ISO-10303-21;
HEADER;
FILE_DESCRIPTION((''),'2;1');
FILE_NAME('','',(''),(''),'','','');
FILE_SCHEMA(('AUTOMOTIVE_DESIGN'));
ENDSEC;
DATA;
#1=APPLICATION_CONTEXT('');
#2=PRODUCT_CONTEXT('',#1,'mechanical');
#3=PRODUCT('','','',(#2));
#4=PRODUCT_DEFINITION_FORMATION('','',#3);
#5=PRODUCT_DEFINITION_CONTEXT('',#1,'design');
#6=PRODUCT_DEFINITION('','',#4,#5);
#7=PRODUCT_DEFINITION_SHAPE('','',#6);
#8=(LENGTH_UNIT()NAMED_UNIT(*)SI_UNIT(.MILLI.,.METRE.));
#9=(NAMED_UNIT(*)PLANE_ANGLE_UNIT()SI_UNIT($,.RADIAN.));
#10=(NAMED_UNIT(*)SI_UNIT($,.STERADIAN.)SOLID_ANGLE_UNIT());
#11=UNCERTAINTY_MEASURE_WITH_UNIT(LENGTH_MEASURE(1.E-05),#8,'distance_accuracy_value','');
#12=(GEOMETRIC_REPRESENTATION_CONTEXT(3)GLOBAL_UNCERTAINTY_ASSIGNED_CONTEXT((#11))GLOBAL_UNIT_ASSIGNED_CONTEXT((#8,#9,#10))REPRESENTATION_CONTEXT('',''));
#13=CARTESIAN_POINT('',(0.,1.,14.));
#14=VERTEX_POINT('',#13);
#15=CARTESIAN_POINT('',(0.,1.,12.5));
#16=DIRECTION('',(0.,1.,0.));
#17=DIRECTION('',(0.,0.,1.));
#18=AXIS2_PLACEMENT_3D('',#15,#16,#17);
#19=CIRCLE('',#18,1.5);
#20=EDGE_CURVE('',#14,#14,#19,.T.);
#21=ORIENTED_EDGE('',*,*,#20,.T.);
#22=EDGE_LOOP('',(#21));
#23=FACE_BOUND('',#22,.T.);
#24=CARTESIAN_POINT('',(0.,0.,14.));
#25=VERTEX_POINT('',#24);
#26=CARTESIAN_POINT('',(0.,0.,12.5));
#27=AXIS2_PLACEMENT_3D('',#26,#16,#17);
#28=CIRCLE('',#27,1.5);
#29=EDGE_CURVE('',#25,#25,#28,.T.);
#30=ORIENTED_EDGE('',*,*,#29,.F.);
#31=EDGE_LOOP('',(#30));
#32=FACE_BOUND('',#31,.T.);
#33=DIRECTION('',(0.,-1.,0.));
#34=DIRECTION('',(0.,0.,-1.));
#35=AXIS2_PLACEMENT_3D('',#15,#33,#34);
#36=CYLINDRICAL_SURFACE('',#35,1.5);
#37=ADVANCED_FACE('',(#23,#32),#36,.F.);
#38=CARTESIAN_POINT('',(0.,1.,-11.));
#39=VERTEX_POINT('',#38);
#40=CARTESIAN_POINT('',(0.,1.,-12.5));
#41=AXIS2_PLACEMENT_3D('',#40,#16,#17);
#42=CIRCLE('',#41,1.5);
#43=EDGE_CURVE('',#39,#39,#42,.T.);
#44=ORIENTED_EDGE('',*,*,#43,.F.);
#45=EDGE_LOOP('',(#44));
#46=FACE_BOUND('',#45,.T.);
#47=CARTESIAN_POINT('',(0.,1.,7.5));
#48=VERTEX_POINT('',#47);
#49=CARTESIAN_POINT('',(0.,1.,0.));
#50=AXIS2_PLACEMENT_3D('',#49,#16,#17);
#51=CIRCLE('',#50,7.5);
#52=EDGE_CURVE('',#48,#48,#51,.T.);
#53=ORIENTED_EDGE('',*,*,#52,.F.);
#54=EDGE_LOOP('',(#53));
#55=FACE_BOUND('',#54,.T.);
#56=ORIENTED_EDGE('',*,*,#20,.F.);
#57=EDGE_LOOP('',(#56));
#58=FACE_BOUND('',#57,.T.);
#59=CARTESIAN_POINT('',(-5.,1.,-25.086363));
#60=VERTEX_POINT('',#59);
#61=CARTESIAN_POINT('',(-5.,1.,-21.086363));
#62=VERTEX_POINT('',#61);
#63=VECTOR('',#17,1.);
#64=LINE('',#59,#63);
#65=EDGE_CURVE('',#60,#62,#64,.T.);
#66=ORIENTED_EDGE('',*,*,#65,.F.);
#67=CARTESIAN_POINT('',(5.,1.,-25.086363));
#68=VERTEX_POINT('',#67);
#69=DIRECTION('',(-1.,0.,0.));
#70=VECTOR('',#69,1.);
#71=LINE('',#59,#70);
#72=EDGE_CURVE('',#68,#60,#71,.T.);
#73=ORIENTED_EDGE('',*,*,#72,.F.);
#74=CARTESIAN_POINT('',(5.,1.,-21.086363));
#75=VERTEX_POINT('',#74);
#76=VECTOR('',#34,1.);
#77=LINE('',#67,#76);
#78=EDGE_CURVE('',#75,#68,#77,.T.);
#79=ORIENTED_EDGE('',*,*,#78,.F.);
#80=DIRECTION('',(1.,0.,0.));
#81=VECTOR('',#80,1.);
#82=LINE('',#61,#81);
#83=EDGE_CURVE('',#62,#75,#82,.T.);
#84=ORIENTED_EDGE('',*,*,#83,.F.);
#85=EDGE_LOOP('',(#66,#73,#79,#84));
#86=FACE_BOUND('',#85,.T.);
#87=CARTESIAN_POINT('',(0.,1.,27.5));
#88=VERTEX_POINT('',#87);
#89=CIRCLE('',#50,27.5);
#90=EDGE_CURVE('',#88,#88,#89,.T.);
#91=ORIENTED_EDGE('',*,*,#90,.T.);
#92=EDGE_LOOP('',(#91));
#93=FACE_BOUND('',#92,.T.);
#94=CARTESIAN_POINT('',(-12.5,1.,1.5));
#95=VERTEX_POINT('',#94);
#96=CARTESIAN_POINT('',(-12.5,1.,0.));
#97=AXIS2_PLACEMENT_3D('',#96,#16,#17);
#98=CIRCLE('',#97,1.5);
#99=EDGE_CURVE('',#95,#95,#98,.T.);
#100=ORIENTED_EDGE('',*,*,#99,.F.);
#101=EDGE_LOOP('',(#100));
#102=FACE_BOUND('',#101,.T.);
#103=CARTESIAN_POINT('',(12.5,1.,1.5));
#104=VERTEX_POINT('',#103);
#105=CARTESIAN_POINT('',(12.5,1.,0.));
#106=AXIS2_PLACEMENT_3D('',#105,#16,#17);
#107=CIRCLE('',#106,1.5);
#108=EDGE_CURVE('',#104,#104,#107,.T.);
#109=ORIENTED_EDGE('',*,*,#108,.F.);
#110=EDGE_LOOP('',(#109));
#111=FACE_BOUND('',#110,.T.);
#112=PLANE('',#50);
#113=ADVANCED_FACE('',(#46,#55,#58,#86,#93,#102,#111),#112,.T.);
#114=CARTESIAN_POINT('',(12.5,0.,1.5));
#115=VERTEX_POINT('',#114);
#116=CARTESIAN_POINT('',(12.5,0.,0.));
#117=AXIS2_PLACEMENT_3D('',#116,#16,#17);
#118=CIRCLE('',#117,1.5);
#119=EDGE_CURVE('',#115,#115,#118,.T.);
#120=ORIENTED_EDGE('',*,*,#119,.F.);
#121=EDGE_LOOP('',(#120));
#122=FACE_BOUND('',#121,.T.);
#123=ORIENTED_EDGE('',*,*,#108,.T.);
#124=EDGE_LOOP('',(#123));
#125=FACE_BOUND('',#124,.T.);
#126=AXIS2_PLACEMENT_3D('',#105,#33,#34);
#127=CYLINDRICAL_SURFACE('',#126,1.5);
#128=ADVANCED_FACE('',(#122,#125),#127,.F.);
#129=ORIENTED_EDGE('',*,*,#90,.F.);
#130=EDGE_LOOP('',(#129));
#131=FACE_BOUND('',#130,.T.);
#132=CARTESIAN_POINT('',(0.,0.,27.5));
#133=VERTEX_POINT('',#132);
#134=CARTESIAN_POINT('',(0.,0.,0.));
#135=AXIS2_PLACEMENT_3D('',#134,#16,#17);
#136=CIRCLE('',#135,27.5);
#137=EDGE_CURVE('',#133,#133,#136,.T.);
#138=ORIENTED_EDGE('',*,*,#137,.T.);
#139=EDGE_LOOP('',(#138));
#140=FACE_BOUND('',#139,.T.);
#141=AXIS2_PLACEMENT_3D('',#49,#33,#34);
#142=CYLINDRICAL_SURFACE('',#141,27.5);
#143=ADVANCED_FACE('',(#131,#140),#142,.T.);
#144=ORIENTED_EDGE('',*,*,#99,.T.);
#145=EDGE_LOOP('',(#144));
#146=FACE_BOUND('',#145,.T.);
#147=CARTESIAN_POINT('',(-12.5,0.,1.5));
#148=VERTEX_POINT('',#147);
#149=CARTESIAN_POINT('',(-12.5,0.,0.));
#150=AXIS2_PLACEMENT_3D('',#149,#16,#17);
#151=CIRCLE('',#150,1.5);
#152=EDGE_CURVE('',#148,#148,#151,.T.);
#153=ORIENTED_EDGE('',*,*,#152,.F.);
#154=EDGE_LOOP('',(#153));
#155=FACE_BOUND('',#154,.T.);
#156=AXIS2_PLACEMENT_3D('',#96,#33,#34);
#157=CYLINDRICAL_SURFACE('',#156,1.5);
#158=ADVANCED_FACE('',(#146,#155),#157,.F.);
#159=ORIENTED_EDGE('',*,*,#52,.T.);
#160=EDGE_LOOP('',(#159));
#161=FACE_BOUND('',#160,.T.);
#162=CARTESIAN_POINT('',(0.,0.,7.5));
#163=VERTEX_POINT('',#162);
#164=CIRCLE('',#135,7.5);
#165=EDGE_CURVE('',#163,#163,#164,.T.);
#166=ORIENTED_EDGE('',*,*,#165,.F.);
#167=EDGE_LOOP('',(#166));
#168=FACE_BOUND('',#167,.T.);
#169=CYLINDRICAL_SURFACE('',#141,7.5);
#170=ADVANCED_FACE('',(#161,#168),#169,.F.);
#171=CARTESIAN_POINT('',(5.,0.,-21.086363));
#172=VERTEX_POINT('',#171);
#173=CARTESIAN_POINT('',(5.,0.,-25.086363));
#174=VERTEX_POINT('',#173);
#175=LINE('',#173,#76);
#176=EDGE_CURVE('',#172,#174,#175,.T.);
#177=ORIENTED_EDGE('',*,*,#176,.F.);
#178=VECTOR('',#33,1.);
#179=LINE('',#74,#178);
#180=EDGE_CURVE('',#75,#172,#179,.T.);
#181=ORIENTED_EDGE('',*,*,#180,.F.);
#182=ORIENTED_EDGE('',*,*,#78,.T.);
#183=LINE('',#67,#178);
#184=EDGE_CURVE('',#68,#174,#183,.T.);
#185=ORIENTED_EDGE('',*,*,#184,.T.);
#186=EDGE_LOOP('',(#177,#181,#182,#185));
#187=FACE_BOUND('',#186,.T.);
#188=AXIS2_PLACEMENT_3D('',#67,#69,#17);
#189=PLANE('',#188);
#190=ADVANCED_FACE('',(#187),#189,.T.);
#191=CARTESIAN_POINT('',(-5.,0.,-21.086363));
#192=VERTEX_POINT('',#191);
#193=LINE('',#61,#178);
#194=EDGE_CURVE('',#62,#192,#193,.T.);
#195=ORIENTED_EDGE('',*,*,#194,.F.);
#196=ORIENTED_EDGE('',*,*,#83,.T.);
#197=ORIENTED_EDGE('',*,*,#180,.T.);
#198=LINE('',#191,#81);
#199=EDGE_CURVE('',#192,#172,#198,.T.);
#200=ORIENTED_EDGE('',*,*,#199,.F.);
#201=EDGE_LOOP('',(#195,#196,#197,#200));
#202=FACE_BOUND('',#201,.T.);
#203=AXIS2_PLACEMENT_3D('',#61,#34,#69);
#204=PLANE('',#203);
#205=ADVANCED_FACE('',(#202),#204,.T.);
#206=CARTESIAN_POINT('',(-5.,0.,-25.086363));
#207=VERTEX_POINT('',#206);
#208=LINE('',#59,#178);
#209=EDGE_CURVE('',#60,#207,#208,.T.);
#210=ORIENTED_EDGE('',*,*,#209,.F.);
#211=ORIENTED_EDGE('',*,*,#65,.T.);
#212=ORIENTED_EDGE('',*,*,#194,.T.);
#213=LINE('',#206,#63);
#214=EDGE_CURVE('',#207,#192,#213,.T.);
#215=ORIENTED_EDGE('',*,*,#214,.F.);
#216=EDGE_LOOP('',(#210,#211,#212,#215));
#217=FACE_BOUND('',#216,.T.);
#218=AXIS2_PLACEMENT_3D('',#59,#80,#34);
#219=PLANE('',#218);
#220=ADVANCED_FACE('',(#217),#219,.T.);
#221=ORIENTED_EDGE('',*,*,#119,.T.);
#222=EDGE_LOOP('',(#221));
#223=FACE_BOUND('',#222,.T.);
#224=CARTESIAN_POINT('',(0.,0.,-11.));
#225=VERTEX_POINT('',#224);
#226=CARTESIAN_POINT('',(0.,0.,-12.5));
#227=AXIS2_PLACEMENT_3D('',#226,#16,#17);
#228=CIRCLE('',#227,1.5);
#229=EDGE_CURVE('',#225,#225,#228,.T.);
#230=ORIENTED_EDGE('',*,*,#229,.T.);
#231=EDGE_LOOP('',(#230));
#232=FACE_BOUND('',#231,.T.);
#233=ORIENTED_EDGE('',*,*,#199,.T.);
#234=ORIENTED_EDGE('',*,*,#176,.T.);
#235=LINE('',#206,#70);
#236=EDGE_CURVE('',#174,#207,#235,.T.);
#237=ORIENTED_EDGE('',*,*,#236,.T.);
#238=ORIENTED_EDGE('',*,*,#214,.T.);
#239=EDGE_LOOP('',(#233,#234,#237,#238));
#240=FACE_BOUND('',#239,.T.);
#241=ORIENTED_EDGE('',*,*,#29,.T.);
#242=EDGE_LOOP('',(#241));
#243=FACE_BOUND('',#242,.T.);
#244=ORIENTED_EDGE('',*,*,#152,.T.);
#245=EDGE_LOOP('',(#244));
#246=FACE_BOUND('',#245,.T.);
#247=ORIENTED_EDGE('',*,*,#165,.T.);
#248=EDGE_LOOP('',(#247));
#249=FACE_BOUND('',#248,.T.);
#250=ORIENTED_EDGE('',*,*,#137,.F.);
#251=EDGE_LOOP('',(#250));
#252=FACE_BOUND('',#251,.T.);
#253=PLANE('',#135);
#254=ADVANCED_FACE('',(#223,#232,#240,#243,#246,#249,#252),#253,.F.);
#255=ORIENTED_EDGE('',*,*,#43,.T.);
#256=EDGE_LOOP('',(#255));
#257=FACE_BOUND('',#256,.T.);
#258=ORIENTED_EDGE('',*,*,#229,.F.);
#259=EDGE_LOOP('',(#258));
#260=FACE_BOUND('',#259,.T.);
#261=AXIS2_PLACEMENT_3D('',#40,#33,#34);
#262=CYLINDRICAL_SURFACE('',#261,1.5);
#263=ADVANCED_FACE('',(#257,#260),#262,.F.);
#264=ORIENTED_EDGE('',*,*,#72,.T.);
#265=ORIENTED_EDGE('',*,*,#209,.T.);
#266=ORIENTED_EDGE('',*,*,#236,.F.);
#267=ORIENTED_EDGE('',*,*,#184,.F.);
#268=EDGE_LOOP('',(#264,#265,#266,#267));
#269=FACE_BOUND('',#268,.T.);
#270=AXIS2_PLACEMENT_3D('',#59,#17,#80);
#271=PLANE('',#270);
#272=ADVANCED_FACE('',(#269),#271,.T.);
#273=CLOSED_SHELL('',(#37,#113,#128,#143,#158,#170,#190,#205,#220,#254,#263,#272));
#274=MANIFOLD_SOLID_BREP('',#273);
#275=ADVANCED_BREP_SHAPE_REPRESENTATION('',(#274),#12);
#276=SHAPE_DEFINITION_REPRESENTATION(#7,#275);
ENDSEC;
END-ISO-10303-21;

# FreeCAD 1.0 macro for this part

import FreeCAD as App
import Part
import Sketcher

V = App.Vector
Q = App.Units.Quantity

doc = App.newDocument("Part")
body = doc.addObject("PartDesign::Body", "Body")

sketch1 = body.newObject("Sketcher::SketchObject", "Sketch")
sketch1.AttachmentSupport = (doc.getObject("XZ_Plane"), [""])
sketch1.MapMode = "FlatFace"
sketch1.addGeometry([
    Part.Circle(V(0, 0, 0), V(0, 0, 1), 27.5),
    Part.LineSegment(V(5, -21.1, 0), V(-5, -21.1, 0)),
    Part.LineSegment(V(-5, -21.1, 0), V(-5, -25.1, 0)),
    Part.LineSegment(V(-5, -25.1, 0), V(5, -25.1, 0)),
    Part.LineSegment(V(5, -25.1, 0), V(5, -21.1, 0)),
    Part.Circle(V(0, -12.5, 0), V(0, 0, 1), 1.5),
    Part.Circle(V(-12.5, 0, 0), V(0, 0, 1), 1.5),
    Part.Circle(V(0, 0, 0), V(0, 0, 1), 7.5),
    Part.Circle(V(0, 12.5, 0), V(0, 0, 1), 1.5),
    Part.Circle(V(12.5, 0, 0), V(0, 0, 1), 1.5),
], False)
sketch1.addConstraint([
    Sketcher.Constraint("Coincident", 1, 2, 2, 1),
    Sketcher.Constraint("Coincident", 2, 2, 3, 1),
    Sketcher.Constraint("Coincident", 3, 2, 4, 1),
    Sketcher.Constraint("Coincident", 4, 2, 1, 1),
    Sketcher.Constraint("Horizontal", 1),
    Sketcher.Constraint("Vertical", 2),
    Sketcher.Constraint("Horizontal", 3),
    Sketcher.Constraint("Vertical", 4),
    Sketcher.Constraint("Coincident", 0, 3, -1, 1),
    Sketcher.Constraint("Coincident", 7, 3, -1, 1),
    Sketcher.Constraint("Equal", 5, 6),
    Sketcher.Constraint("Equal", 6, 8),
    Sketcher.Constraint("Equal", 8, 9),
    Sketcher.Constraint("Symmetric", 5, 3, 8, 3, -1, 1),
    Sketcher.Constraint("Symmetric", 6, 3, 9, 3, -1, 1),
    Sketcher.Constraint("PointOnObject", 5, 3, -2),
    Sketcher.Constraint("PointOnObject", 6, 3, -1),
    Sketcher.Constraint("Diameter", 0, Q("55 mm")),
    Sketcher.Constraint("Diameter", 5, Q("3 mm")),
    Sketcher.Constraint("Diameter", 7, Q("15 mm")),
    Sketcher.Constraint("DistanceX", 1, 2, 1, 1, Q("10 mm")),
    Sketcher.Constraint("DistanceY", 2, 2, 2, 1, Q("4 mm")),
    Sketcher.Constraint("DistanceX", 1, 2, -1, 1, Q("5 mm")),
    Sketcher.Constraint("DistanceY", 5, 3, 8, 3, Q("25 mm")),
    Sketcher.Constraint("DistanceX", 6, 3, 9, 3, Q("25 mm")),
    Sketcher.Constraint("DistanceY", 1, 2, -1, 1, Q("21.086363 mm")),
])
pad1 = body.newObject("PartDesign::Pad", "Pad")
pad1.Profile = sketch1
pad1.Length = 1
pad1.Reversed = True

doc.recompute()
